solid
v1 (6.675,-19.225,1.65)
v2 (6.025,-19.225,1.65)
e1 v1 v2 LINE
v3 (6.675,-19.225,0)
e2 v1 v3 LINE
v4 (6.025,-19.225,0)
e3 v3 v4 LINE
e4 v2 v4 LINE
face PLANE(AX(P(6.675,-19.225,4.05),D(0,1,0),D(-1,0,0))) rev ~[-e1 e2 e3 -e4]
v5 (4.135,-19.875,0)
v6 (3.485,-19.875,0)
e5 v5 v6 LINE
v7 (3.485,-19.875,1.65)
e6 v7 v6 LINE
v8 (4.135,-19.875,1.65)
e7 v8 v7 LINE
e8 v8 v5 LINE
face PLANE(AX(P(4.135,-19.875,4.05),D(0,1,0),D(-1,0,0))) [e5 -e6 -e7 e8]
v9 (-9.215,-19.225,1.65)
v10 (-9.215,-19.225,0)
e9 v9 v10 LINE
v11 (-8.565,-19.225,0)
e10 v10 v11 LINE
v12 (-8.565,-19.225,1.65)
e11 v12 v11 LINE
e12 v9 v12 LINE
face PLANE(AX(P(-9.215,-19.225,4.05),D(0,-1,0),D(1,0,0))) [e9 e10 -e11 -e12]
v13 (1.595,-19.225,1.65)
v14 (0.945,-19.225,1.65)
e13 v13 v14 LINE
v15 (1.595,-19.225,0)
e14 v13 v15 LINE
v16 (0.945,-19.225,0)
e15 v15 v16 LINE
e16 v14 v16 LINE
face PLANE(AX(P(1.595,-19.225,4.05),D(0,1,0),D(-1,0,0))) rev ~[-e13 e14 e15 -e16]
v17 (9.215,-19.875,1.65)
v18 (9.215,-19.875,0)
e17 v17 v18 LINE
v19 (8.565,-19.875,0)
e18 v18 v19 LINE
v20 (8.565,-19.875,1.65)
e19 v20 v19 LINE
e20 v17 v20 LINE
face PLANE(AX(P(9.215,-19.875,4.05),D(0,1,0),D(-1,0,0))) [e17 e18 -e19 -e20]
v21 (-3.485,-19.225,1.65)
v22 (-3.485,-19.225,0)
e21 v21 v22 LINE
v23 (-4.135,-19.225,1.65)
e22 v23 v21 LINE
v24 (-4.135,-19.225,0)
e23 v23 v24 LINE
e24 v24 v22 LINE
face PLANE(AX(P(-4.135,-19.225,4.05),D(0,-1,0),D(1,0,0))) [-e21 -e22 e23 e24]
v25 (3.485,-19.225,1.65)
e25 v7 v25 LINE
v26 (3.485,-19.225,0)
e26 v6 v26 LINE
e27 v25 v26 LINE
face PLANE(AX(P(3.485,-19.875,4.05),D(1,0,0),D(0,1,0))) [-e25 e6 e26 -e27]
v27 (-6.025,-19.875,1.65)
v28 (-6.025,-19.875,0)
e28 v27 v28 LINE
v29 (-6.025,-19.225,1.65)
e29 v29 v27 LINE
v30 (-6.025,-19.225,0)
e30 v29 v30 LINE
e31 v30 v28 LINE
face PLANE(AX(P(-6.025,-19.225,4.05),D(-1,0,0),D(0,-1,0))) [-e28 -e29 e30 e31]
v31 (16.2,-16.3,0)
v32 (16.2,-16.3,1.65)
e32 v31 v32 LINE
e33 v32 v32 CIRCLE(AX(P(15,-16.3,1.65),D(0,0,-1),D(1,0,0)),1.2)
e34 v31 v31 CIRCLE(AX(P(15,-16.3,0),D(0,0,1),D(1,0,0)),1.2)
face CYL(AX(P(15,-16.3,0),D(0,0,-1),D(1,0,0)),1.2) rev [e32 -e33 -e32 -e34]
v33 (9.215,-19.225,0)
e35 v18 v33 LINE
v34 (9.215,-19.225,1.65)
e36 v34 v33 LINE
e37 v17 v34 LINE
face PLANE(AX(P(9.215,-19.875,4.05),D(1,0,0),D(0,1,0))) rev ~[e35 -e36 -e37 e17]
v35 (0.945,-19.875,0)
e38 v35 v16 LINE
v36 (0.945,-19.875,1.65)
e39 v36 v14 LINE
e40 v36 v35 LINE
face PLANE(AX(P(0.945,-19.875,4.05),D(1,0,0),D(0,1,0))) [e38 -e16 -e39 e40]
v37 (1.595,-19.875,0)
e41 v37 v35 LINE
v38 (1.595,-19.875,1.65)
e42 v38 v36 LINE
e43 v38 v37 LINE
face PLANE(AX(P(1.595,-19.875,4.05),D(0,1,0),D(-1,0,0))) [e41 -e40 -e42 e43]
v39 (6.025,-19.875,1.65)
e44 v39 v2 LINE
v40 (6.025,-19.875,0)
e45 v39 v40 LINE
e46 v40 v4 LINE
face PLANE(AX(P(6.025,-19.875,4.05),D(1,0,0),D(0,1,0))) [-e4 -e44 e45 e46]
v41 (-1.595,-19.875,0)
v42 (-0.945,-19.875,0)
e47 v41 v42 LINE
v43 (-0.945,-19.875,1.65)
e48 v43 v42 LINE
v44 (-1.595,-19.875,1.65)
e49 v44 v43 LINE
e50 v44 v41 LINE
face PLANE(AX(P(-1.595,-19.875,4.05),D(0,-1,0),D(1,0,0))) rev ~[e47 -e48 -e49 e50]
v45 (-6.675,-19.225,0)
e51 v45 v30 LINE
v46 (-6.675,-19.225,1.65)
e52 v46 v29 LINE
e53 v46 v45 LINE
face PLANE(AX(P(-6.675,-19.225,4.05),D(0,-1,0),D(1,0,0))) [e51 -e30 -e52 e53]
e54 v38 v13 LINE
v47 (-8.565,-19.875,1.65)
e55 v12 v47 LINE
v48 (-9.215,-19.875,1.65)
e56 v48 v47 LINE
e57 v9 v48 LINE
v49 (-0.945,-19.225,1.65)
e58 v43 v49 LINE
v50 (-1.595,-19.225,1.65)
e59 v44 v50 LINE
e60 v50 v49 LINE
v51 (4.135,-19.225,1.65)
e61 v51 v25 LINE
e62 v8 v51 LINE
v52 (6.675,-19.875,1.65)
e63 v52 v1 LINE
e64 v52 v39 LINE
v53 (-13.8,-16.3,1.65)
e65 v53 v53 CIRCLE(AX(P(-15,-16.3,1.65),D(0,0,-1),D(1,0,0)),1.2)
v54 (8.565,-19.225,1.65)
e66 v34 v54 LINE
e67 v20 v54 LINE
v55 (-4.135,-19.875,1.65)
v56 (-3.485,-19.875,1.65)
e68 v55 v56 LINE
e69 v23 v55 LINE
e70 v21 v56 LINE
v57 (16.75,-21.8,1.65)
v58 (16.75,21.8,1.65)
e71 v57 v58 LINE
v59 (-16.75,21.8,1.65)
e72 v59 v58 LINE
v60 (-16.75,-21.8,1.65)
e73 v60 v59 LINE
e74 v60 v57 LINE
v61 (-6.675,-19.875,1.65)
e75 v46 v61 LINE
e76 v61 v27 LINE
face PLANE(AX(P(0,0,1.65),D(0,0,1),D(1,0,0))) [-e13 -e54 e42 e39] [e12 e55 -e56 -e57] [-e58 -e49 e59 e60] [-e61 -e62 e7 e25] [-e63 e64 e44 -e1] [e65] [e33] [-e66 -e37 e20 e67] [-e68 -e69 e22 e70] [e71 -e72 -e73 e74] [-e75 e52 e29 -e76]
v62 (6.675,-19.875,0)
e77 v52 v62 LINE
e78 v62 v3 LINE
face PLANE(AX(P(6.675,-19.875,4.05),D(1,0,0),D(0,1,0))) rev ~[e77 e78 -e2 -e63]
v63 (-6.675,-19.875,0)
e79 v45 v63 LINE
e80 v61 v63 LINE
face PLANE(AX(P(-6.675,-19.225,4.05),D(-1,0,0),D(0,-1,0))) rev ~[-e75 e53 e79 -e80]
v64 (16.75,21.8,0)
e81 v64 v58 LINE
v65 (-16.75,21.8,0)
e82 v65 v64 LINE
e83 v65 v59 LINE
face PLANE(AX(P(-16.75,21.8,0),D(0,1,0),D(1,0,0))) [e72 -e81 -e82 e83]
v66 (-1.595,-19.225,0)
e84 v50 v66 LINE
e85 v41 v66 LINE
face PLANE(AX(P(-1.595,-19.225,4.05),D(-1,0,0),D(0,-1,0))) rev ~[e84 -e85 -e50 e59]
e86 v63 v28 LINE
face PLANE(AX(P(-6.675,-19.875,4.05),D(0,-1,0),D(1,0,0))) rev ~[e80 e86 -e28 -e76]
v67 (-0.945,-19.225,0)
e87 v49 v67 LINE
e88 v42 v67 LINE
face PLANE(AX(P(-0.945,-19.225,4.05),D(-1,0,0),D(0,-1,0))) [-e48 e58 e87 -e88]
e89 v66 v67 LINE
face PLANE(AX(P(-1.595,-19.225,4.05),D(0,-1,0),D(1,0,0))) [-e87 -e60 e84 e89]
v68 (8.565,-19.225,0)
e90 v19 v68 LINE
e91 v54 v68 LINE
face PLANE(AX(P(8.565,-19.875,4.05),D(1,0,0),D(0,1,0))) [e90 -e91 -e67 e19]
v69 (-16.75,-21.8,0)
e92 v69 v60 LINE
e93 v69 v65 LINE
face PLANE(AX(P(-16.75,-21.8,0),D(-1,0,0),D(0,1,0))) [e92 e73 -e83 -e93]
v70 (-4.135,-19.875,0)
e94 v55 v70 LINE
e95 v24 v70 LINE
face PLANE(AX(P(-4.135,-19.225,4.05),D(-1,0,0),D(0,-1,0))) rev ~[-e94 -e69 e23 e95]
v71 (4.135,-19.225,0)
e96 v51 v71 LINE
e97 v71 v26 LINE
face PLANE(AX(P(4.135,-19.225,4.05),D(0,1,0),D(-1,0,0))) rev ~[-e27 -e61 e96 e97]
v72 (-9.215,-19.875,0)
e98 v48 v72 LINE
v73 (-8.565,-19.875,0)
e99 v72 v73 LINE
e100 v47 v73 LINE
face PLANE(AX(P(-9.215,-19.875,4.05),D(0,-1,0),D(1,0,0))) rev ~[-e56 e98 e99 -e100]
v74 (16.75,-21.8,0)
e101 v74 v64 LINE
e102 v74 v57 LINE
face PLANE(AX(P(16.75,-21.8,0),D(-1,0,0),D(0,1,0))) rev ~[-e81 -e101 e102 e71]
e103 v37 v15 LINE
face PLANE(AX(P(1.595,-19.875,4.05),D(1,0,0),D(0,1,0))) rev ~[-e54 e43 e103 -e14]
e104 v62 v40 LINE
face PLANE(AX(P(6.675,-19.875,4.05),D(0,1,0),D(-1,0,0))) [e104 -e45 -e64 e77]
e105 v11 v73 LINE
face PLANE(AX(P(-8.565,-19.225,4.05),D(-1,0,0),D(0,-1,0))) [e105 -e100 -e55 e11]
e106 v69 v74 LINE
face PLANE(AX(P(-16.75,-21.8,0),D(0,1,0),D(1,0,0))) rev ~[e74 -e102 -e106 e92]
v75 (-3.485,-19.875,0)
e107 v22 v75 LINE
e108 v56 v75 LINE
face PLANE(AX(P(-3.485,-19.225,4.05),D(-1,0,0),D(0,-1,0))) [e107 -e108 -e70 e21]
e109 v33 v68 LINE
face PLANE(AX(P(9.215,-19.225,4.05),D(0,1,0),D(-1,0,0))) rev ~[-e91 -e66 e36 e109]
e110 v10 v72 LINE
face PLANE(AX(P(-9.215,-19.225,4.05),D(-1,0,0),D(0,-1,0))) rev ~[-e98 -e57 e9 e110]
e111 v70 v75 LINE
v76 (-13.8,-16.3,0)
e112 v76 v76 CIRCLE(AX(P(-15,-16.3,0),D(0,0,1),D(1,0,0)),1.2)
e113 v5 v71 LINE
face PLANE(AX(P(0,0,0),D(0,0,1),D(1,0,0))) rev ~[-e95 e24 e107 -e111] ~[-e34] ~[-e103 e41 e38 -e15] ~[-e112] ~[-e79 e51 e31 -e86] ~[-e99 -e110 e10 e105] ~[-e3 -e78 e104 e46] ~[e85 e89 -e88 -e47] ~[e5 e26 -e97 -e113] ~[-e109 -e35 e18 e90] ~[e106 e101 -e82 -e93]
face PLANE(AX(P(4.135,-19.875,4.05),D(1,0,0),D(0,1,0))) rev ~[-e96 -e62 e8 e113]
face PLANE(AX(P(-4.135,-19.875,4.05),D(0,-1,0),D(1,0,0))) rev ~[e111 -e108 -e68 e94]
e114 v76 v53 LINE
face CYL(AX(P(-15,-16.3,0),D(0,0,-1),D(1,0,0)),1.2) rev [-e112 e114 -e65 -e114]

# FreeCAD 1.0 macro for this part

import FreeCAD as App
import Part
import Sketcher
Q = App.Units.Quantity


def add_polygon(sketch, points):
    """Adds a closed chain of lines whose ends are joined by coincident constraints."""
    first, n = sketch.GeometryCount, len(points)
    for a, b in zip(points, points[1:] + points[:1]):
        sketch.addGeometry(Part.LineSegment(App.Vector(*a, 0), App.Vector(*b, 0)), False)
    for i in range(n):
        sketch.addConstraint(Sketcher.Constraint("Coincident", first + i, 2, first + (i + 1) % n, 1))

doc = App.newDocument("Part")
body = doc.addObject("PartDesign::Body", "Body")

sketch1 = body.newObject("Sketcher::SketchObject", "Sketch")
sketch1.AttachmentSupport = (doc.getObject("XY_Plane"), [""])
sketch1.MapMode = "FlatFace"
add_polygon(sketch1, [(-17, 22), (-17, -22), (17, -22), (17, 22)])
sketch1.addConstraint(Sketcher.Constraint("Vertical", 0))
sketch1.addConstraint(Sketcher.Constraint("Horizontal", 1))
sketch1.addConstraint(Sketcher.Constraint("Vertical", 2))
sketch1.addConstraint(Sketcher.Constraint("Horizontal", 3))
sketch1.addConstraint(Sketcher.Constraint("Symmetric", 0, 2, 2, 2, -1, 1))
sketch1.addConstraint(Sketcher.Constraint("DistanceX", 1, 1, 1, 2, Q("33.5 mm")))
sketch1.addConstraint(Sketcher.Constraint("DistanceY", 0, 2, 0, 1, Q("43.6 mm")))
pad1 = body.newObject("PartDesign::Pad", "Pad")
pad1.Profile = sketch1
pad1.Length = 1.65

sketch2 = body.newObject("Sketcher::SketchObject", "Sketch001")
sketch2.AttachmentSupport = (doc.getObject("XY_Plane"), [""])
sketch2.MapMode = "FlatFace"
sketch2.AttachmentOffset = App.Placement(App.Vector(0, 0, 3.05), App.Rotation())
add_polygon(sketch2, [(1.6, -19.2), (1.6, -19.9), (0.9, -19.9), (0.9, -19.2)])
sketch2.addConstraint(Sketcher.Constraint("Vertical", 0))
sketch2.addConstraint(Sketcher.Constraint("Horizontal", 1))
sketch2.addConstraint(Sketcher.Constraint("Vertical", 2))
sketch2.addConstraint(Sketcher.Constraint("Horizontal", 3))
sketch2.addConstraint(Sketcher.Constraint("Equal", 3, 0))
sketch2.addConstraint(Sketcher.Constraint("DistanceX", 1, 2, 1, 1, Q("0.65 mm")))
sketch2.addConstraint(Sketcher.Constraint("DistanceX", -1, 1, 0, 2, Q("1.595 mm")))
sketch2.addConstraint(Sketcher.Constraint("DistanceY", 0, 2, -1, 1, Q("19.875 mm")))
pad2 = body.newObject("PartDesign::Pad", "Pad001")
pad2.Profile = sketch2
pad2.Length = 11.55
pad2.Reversed = True

sketch3 = body.newObject("Sketcher::SketchObject", "Sketch002")
sketch3.AttachmentSupport = (doc.getObject("XY_Plane"), [""])
sketch3.MapMode = "FlatFace"
sketch3.AttachmentOffset = App.Placement(App.Vector(0, 0, 4.05), App.Rotation())
add_polygon(sketch3, [(1.6, -19.2), (1.6, -19.9), (0.9, -19.9), (0.9, -19.2)])
sketch3.addConstraint(Sketcher.Constraint("Vertical", 0))
sketch3.addConstraint(Sketcher.Constraint("Horizontal", 1))
sketch3.addConstraint(Sketcher.Constraint("Vertical", 2))
sketch3.addConstraint(Sketcher.Constraint("Horizontal", 3))
sketch3.addConstraint(Sketcher.Constraint("Equal", 3, 0))
sketch3.addConstraint(Sketcher.Constraint("DistanceX", 1, 2, 1, 1, Q("0.65 mm")))
sketch3.addConstraint(Sketcher.Constraint("DistanceX", -1, 1, 0, 2, Q("1.595 mm")))
sketch3.addConstraint(Sketcher.Constraint("DistanceY", 0, 2, -1, 1, Q("19.875 mm")))
pocket1 = body.newObject("PartDesign::Pocket", "Pocket")
pocket1.Profile = sketch3
pocket1.Length = 13.55
doc.recompute()

linearpattern = body.newObject("PartDesign::LinearPattern", "LinearPattern")
linearpattern.Originals = [pocket1]
linearpattern.Direction = (doc.getObject("X_Axis"), [""])
linearpattern.Mode = "offset"
linearpattern.Offset = 2.54
linearpattern.Occurrences = 4
body.Tip = linearpattern
doc.recompute()

mirrored = body.newObject("PartDesign::Mirrored", "Mirrored")
mirrored.Originals = [pad2]
mirrored.MirrorPlane = (doc.getObject("YZ_Plane"), [""])
body.Tip = mirrored

sketch4 = body.newObject("Sketcher::SketchObject", "Sketch003")
sketch4.AttachmentSupport = (doc.getObject("XY_Plane"), [""])
sketch4.MapMode = "FlatFace"
sketch4.AttachmentOffset = App.Placement(App.Vector(0, 0, 4.05), App.Rotation())
add_polygon(sketch4, [(-4.1, -19.9), (-4.1, -19.2), (-3.5, -19.2), (-3.5, -19.9)])
sketch4.addConstraint(Sketcher.Constraint("Vertical", 0))
sketch4.addConstraint(Sketcher.Constraint("Horizontal", 1))
sketch4.addConstraint(Sketcher.Constraint("Vertical", 2))
sketch4.addConstraint(Sketcher.Constraint("Horizontal", 3))
sketch4.addConstraint(Sketcher.Constraint("Equal", 3, 0))
sketch4.addConstraint(Sketcher.Constraint("DistanceX", 1, 1, 1, 2, Q("0.65 mm")))
sketch4.addConstraint(Sketcher.Constraint("DistanceX", 0, 2, -1, 1, Q("4.135 mm")))
sketch4.addConstraint(Sketcher.Constraint("DistanceY", 0, 2, -1, 1, Q("19.225 mm")))
pocket2 = body.newObject("PartDesign::Pocket", "Pocket001")
pocket2.Profile = sketch4
pocket2.Length = 13.55

sketch5 = body.newObject("Sketcher::SketchObject", "Sketch004")
sketch5.AttachmentSupport = (doc.getObject("XY_Plane"), [""])
sketch5.MapMode = "FlatFace"
sketch5.AttachmentOffset = App.Placement(App.Vector(0, 0, 4.05), App.Rotation())
add_polygon(sketch5, [(-6.7, -19.9), (-6.7, -19.2), (-6, -19.2), (-6, -19.9)])
sketch5.addConstraint(Sketcher.Constraint("Vertical", 0))
sketch5.addConstraint(Sketcher.Constraint("Horizontal", 1))
sketch5.addConstraint(Sketcher.Constraint("Vertical", 2))
sketch5.addConstraint(Sketcher.Constraint("Horizontal", 3))
sketch5.addConstraint(Sketcher.Constraint("Equal", 3, 0))
sketch5.addConstraint(Sketcher.Constraint("DistanceX", 1, 1, 1, 2, Q("0.65 mm")))
sketch5.addConstraint(Sketcher.Constraint("DistanceX", 0, 2, -1, 1, Q("6.675 mm")))
sketch5.addConstraint(Sketcher.Constraint("DistanceY", 0, 2, -1, 1, Q("19.225 mm")))
pocket3 = body.newObject("PartDesign::Pocket", "Pocket002")
pocket3.Profile = sketch5
pocket3.Length = 13.55

sketch6 = body.newObject("Sketcher::SketchObject", "Sketch005")
sketch6.AttachmentSupport = (doc.getObject("XY_Plane"), [""])
sketch6.MapMode = "FlatFace"
sketch6.AttachmentOffset = App.Placement(App.Vector(0, 0, 4.05), App.Rotation())
add_polygon(sketch6, [(-9.2, -19.9), (-9.2, -19.2), (-8.6, -19.2), (-8.6, -19.9)])
sketch6.addConstraint(Sketcher.Constraint("Vertical", 0))
sketch6.addConstraint(Sketcher.Constraint("Horizontal", 1))
sketch6.addConstraint(Sketcher.Constraint("Vertical", 2))
sketch6.addConstraint(Sketcher.Constraint("Horizontal", 3))
sketch6.addConstraint(Sketcher.Constraint("Equal", 3, 0))
sketch6.addConstraint(Sketcher.Constraint("DistanceX", 1, 1, 1, 2, Q("0.65 mm")))
sketch6.addConstraint(Sketcher.Constraint("DistanceX", 0, 2, -1, 1, Q("9.215 mm")))
sketch6.addConstraint(Sketcher.Constraint("DistanceY", 0, 2, -1, 1, Q("19.225 mm")))
pocket4 = body.newObject("PartDesign::Pocket", "Pocket003")
pocket4.Profile = sketch6
pocket4.Length = 13.55

sketch7 = body.newObject("Sketcher::SketchObject", "Sketch006")
sketch7.AttachmentSupport = (doc.getObject("XY_Plane"), [""])
sketch7.MapMode = "FlatFace"
sketch7.AttachmentOffset = App.Placement(App.Vector(0, 0, 4.05), App.Rotation())
add_polygon(sketch7, [(-1.6, -19.9), (-1.6, -19.2), (-0.9, -19.2), (-0.9, -19.9)])
sketch7.addConstraint(Sketcher.Constraint("Vertical", 0))
sketch7.addConstraint(Sketcher.Constraint("Horizontal", 1))
sketch7.addConstraint(Sketcher.Constraint("Vertical", 2))
sketch7.addConstraint(Sketcher.Constraint("Horizontal", 3))
sketch7.addConstraint(Sketcher.Constraint("Equal", 3, 0))
sketch7.addConstraint(Sketcher.Constraint("DistanceX", 1, 1, 1, 2, Q("0.65 mm")))
sketch7.addConstraint(Sketcher.Constraint("DistanceX", 0, 2, -1, 1, Q("1.595 mm")))
sketch7.addConstraint(Sketcher.Constraint("DistanceY", 0, 2, -1, 1, Q("19.225 mm")))
pocket5 = body.newObject("PartDesign::Pocket", "Pocket004")
pocket5.Profile = sketch7
pocket5.Length = 13.55

sketch8 = body.newObject("Sketcher::SketchObject", "Sketch007")
sketch8.AttachmentSupport = (doc.getObject("XY_Plane"), [""])
sketch8.MapMode = "FlatFace"
sketch8.addGeometry(Part.Circle(App.Vector(-15, -16.3, 0), App.Vector(0, 0, 1), 1.2), False)
sketch8.addGeometry(Part.Circle(App.Vector(15, -16.3, 0), App.Vector(0, 0, 1), 1.2), False)
sketch8.addConstraint(Sketcher.Constraint("Equal", 0, 1))
sketch8.addConstraint(Sketcher.Constraint("Symmetric", 0, 3, 1, 3, -2))
sketch8.addConstraint(Sketcher.Constraint("Diameter", 0, Q("2.4 mm")))
sketch8.addConstraint(Sketcher.Constraint("DistanceX", 0, 3, -1, 1, Q("15 mm")))
sketch8.addConstraint(Sketcher.Constraint("DistanceY", 0, 3, -1, 1, Q("16.3 mm")))
pocket6 = body.newObject("PartDesign::Pocket", "Pocket005")
pocket6.Profile = sketch8
pocket6.Type = "ThroughAll"
pocket6.Reversed = True

doc.recompute()
